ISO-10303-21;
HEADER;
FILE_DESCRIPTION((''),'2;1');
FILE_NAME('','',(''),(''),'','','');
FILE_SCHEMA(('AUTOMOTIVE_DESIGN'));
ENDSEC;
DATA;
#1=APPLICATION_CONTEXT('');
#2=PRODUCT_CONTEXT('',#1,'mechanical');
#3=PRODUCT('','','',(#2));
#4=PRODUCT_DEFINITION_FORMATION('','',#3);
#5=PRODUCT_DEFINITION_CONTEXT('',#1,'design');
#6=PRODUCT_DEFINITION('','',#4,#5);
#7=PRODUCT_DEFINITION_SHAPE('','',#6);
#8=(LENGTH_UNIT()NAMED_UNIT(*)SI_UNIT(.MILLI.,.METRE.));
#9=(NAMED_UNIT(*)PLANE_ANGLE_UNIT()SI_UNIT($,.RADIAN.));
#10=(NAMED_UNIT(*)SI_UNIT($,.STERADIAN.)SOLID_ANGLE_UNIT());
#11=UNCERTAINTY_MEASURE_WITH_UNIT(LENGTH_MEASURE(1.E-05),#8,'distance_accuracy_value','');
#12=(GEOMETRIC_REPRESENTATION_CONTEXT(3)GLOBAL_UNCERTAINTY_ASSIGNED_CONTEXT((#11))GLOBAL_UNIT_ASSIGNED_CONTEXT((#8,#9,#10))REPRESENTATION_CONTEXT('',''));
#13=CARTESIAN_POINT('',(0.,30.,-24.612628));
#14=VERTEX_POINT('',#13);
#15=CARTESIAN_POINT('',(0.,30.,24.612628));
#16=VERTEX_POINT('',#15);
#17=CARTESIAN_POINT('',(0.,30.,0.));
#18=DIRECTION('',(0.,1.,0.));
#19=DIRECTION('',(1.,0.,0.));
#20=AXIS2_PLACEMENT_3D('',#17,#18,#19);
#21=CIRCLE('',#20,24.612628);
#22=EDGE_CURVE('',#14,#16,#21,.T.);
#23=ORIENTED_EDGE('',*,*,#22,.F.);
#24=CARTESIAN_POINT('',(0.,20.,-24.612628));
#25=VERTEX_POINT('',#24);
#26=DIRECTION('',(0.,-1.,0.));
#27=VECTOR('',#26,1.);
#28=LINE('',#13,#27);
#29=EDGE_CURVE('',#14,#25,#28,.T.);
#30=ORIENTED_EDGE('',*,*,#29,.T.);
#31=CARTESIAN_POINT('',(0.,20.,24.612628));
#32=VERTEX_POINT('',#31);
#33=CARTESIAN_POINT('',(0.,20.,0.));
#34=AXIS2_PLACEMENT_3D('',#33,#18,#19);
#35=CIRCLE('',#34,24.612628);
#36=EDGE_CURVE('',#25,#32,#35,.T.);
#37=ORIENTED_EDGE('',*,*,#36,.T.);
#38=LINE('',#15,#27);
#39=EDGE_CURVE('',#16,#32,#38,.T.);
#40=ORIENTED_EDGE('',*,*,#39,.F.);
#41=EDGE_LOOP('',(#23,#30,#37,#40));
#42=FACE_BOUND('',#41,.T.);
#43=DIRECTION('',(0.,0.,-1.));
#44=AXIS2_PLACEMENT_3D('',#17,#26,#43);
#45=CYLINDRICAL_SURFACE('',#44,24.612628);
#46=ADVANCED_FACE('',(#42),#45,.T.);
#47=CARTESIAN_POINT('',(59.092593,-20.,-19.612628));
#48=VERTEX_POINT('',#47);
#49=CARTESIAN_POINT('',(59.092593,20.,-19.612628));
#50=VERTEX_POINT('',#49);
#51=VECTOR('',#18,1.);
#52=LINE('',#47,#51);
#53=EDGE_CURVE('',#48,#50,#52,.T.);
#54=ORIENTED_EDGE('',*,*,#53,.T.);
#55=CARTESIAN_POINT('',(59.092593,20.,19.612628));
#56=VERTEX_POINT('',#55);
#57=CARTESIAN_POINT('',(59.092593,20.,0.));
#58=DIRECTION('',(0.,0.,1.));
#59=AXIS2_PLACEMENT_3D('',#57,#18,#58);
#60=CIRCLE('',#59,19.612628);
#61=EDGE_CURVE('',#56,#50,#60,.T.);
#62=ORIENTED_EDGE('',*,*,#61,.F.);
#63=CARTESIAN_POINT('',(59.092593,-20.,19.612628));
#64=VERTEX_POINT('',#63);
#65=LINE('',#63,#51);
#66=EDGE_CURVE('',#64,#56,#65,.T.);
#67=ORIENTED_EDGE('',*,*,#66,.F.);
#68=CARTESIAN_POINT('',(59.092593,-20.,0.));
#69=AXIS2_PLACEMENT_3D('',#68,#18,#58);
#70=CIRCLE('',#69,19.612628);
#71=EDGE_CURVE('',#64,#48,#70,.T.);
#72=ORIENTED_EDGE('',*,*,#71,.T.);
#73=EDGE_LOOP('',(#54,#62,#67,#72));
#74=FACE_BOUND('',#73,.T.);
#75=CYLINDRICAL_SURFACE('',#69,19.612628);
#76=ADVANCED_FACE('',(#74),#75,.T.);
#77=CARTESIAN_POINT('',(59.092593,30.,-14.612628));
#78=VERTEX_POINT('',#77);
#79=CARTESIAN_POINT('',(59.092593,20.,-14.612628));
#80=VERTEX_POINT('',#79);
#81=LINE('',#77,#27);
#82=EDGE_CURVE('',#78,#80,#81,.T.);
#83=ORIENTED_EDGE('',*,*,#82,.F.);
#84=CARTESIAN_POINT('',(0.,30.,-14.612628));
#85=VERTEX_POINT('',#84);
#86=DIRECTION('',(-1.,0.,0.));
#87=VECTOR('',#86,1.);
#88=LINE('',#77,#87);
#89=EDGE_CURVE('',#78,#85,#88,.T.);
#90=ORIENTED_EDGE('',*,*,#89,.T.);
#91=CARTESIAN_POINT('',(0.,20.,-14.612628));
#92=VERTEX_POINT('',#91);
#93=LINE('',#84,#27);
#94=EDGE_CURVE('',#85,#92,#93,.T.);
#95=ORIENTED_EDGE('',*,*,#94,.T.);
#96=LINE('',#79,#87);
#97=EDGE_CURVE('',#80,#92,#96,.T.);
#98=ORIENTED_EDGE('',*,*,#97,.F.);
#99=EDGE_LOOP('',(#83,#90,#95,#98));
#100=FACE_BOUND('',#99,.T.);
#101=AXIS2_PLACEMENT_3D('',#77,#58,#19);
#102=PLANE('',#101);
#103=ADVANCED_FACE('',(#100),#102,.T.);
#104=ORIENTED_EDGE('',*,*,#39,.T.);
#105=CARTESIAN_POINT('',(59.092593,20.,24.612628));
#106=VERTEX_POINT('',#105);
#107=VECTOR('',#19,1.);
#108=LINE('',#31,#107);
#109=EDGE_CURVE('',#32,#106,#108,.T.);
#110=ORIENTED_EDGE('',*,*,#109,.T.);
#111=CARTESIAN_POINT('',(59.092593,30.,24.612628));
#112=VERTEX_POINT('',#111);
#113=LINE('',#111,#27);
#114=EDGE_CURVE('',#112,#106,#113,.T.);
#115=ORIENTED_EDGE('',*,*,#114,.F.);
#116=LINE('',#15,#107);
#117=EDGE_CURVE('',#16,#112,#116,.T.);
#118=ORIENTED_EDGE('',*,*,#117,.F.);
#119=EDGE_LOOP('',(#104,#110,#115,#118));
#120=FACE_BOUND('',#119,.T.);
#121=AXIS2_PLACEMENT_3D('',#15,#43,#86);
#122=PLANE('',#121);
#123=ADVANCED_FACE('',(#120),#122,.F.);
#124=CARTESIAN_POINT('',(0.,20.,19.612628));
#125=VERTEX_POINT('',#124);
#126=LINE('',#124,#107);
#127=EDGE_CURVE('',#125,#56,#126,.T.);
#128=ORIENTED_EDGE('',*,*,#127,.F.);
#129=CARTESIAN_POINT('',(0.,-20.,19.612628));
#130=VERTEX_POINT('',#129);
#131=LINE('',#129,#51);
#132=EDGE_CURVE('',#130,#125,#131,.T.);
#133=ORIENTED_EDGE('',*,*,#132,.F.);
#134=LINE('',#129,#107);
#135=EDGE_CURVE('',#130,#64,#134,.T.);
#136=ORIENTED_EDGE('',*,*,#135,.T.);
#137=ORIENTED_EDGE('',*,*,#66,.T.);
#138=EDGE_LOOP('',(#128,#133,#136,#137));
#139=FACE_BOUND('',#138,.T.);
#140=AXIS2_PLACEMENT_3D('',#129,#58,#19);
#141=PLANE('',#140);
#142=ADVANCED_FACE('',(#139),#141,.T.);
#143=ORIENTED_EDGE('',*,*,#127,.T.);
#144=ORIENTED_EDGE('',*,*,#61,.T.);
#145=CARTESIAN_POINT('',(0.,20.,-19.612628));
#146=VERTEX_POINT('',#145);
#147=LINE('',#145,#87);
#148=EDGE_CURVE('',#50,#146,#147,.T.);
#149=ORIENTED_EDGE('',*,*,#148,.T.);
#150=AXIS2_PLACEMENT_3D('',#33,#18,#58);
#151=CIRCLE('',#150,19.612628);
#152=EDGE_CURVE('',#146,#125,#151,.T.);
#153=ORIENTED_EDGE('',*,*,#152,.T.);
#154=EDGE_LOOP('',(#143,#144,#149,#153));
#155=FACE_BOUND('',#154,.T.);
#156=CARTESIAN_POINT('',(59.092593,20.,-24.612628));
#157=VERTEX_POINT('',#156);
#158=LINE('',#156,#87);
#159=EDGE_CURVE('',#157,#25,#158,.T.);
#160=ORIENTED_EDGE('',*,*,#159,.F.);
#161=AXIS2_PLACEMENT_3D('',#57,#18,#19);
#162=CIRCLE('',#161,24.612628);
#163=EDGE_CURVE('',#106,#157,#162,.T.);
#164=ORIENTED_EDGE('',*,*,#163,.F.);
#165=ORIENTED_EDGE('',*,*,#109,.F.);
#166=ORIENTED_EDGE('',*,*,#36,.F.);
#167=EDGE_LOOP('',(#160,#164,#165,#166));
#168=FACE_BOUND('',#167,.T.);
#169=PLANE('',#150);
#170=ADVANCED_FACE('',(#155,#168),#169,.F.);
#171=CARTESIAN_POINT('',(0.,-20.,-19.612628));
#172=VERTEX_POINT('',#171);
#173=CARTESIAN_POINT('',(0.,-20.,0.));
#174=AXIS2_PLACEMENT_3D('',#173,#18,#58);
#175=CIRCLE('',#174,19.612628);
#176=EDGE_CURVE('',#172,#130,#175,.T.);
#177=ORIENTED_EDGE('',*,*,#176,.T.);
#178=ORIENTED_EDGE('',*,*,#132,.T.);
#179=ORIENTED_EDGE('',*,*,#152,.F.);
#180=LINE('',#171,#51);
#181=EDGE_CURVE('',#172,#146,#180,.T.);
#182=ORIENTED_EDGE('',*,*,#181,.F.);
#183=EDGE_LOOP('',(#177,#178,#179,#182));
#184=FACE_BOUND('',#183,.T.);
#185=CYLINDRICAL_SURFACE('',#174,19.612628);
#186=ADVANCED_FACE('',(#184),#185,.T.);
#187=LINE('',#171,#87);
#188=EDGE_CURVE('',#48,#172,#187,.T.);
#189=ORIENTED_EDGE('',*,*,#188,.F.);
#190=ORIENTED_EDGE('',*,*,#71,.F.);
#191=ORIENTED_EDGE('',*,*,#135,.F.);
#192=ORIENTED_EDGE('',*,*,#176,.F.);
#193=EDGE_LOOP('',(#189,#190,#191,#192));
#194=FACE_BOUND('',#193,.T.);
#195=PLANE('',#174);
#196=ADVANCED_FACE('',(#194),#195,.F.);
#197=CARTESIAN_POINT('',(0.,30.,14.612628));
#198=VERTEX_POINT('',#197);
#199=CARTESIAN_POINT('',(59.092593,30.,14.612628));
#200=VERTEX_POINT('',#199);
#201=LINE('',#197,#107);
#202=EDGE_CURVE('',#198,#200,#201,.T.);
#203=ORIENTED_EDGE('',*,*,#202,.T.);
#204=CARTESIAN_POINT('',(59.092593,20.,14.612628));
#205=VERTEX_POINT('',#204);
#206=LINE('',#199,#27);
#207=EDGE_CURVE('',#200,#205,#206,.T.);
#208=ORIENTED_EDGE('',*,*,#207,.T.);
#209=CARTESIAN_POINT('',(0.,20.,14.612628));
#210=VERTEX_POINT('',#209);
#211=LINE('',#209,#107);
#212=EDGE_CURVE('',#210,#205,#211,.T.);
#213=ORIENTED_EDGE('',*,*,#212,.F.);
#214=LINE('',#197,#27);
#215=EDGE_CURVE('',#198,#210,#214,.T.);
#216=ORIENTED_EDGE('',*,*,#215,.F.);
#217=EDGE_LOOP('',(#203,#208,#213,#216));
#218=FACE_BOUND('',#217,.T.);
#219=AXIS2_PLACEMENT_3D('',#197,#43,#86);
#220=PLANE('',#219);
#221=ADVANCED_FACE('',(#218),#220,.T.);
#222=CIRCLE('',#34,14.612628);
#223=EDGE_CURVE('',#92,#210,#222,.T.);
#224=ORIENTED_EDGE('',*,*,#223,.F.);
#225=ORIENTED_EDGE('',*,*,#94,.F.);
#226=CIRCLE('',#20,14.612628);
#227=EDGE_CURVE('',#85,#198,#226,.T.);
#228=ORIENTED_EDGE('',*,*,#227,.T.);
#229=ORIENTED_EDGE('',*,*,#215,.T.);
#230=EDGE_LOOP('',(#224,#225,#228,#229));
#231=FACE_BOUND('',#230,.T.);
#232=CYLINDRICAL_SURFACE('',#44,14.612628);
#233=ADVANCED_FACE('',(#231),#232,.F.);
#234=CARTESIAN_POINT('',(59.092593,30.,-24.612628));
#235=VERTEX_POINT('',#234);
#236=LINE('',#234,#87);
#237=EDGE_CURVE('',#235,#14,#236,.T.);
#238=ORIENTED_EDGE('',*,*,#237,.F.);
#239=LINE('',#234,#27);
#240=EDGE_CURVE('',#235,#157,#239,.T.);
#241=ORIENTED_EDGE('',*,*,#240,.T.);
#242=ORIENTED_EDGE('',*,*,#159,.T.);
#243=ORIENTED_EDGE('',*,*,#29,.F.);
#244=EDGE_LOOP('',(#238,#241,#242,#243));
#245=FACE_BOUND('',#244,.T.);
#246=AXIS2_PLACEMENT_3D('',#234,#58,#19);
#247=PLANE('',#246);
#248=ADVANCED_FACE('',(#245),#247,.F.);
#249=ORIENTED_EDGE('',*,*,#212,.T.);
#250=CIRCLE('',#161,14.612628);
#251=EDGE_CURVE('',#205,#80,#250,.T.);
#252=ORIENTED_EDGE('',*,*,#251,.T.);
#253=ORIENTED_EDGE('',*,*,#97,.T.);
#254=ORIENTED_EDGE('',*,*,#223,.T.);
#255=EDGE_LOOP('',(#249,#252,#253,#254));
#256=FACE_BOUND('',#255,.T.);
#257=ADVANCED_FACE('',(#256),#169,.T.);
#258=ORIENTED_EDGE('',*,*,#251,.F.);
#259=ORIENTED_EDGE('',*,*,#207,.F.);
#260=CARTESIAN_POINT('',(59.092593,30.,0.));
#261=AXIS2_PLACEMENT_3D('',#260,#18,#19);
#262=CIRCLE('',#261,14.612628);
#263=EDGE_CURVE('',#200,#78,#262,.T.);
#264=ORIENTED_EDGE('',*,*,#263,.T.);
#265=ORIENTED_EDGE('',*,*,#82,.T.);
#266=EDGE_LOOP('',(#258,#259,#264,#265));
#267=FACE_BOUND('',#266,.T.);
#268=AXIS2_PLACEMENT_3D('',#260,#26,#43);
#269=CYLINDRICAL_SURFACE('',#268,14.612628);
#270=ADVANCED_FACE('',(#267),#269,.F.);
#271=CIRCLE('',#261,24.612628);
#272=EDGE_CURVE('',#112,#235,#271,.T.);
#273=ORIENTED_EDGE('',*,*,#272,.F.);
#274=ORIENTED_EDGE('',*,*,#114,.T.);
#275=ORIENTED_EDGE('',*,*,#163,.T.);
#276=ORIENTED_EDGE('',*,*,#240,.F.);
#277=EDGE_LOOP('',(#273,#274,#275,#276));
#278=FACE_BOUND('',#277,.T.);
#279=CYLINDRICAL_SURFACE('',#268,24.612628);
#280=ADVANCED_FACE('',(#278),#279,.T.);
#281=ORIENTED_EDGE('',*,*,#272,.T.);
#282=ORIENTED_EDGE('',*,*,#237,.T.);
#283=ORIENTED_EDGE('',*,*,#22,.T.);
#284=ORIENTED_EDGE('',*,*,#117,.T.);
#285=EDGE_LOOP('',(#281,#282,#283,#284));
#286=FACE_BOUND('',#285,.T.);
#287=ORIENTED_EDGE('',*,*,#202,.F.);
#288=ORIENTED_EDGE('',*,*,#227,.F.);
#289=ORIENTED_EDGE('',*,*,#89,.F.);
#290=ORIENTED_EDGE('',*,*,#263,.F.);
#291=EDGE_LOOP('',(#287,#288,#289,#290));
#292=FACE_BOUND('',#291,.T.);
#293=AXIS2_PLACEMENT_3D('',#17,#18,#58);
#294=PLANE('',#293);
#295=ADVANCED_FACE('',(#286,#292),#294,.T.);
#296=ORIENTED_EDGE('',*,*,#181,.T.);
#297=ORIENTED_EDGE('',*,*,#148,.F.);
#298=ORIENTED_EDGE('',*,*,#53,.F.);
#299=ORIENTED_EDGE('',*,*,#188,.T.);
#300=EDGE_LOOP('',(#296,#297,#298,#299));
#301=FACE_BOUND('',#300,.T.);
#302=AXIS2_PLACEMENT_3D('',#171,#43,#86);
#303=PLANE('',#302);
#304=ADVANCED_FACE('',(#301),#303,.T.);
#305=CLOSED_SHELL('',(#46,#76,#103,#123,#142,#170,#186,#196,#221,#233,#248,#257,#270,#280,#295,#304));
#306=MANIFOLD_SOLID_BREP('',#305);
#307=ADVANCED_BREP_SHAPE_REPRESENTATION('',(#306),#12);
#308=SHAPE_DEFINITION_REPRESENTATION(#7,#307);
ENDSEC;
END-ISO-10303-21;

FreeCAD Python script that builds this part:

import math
import FreeCAD as App
import Part
import Sketcher

V = App.Vector
Q = App.Units.Quantity

doc = App.newDocument("Part")
params = doc.addObject("Spreadsheet::Sheet", "Params")
for row, (alias, value) in enumerate([
    ("pad1_length", "20 mm"),
    ("pad1_length2", "20 mm"),
    ("pad2_length", "10 mm"),
], start=1):
    params.set(f"A{row}", alias)
    params.set(f"B{row}", "=" + value)
    params.setAlias(f"B{row}", alias)

body = doc.addObject("PartDesign::Body", "Body")

# Sketch on XZ plane
sketch1 = body.newObject("Sketcher::SketchObject", "Sketch")
sketch1.AttachmentSupport = (doc.getObject("XZ_Plane"), [""])
sketch1.MapMode = "FlatFace"
sketch1.addGeometry([
    Part.LineSegment(V(59, -20, 0), V(0, -20, 0)),
    Part.ArcOfCircle(Part.Circle(V(0, 0, 0), V(0, 0, 1), 20), math.radians(90), math.radians(270)),
    Part.LineSegment(V(0, 20, 0), V(59, 20, 0)),
    Part.ArcOfCircle(Part.Circle(V(59, 0, 0), V(0, 0, 1), 20), math.radians(-90), math.radians(90)),
], False)
sketch1.addConstraint([
    Sketcher.Constraint("Tangent", 0, 2, 1, 2),
    Sketcher.Constraint("Tangent", 1, 1, 2, 1),
    Sketcher.Constraint("Tangent", 2, 2, 3, 2),
    Sketcher.Constraint("Tangent", 3, 1, 0, 1),
    Sketcher.Constraint("Horizontal", 0),
    Sketcher.Constraint("Horizontal", 2),
    Sketcher.Constraint("Coincident", 1, 3, -1, 1),
    Sketcher.Constraint("Radius", 1, Q("19.612628 mm")),
    Sketcher.Constraint("DistanceX", 0, 2, 0, 1, Q("59.092593 mm")),
])
pad1 = body.newObject("PartDesign::Pad", "Pad")
pad1.Profile = sketch1
pad1.Type = "TwoLengths"
pad1.setExpression("Length", "Params.pad1_length")
pad1.setExpression("Length2", "Params.pad1_length2")
pad1.Reversed = True

# Sketch on XZ plane
sketch2 = body.newObject("Sketcher::SketchObject", "Sketch001")
sketch2.AttachmentSupport = (doc.getObject("XZ_Plane"), [""])
sketch2.MapMode = "FlatFace"
sketch2.AttachmentOffset = App.Placement(V(0, 0, -20), App.Rotation())
sketch2.addGeometry([
    Part.LineSegment(V(59, -25, 0), V(0, -25, 0)),  # 0
    Part.ArcOfCircle(Part.Circle(V(0, 0, 0), V(0, 0, 1), 25), math.radians(90), math.radians(270)),  # 1
    Part.LineSegment(V(0, 25, 0), V(59, 25, 0)),  # 2
    Part.ArcOfCircle(Part.Circle(V(59, 0, 0), V(0, 0, 1), 25), math.radians(-90), math.radians(90)),  # 3
    Part.LineSegment(V(0, -15, 0), V(59, -15, 0)),  # 4
    Part.ArcOfCircle(Part.Circle(V(59, 0, 0), V(0, 0, 1), 15), math.radians(-90), math.radians(90)),  # 5
    Part.LineSegment(V(59, 15, 0), V(0, 15, 0)),  # 6
    Part.ArcOfCircle(Part.Circle(V(0, 0, 0), V(0, 0, 1), 15), math.radians(90), math.radians(270)),  # 7
], False)
sketch2.addConstraint([
    Sketcher.Constraint("Tangent", 0, 2, 1, 2),
    Sketcher.Constraint("Tangent", 1, 1, 2, 1),
    Sketcher.Constraint("Tangent", 2, 2, 3, 2),
    Sketcher.Constraint("Tangent", 3, 1, 0, 1),
    Sketcher.Constraint("Tangent", 4, 2, 5, 1),
    Sketcher.Constraint("Tangent", 5, 2, 6, 1),
    Sketcher.Constraint("Tangent", 6, 2, 7, 1),
    Sketcher.Constraint("Tangent", 7, 2, 4, 1),
    Sketcher.Constraint("Horizontal", 0),
    Sketcher.Constraint("Horizontal", 2),
    Sketcher.Constraint("Horizontal", 4),
    Sketcher.Constraint("Horizontal", 6),
    Sketcher.Constraint("Coincident", 1, 3, -1, 1),
    Sketcher.Constraint("Coincident", 7, 3, -1, 1),
    Sketcher.Constraint("Vertical", 5, 3, 2, 2),
    Sketcher.Constraint("DistanceY", 3, 1, 4, 2, Q("10 mm")),
    Sketcher.Constraint("Radius", 1, Q("24.612628 mm")),
    Sketcher.Constraint("DistanceX", 0, 2, 0, 1, Q("59.092593 mm")),
])
pad2 = body.newObject("PartDesign::Pad", "Pad001")
pad2.Profile = sketch2
pad2.setExpression("Length", "Params.pad2_length")
pad2.Reversed = True

doc.recompute()
